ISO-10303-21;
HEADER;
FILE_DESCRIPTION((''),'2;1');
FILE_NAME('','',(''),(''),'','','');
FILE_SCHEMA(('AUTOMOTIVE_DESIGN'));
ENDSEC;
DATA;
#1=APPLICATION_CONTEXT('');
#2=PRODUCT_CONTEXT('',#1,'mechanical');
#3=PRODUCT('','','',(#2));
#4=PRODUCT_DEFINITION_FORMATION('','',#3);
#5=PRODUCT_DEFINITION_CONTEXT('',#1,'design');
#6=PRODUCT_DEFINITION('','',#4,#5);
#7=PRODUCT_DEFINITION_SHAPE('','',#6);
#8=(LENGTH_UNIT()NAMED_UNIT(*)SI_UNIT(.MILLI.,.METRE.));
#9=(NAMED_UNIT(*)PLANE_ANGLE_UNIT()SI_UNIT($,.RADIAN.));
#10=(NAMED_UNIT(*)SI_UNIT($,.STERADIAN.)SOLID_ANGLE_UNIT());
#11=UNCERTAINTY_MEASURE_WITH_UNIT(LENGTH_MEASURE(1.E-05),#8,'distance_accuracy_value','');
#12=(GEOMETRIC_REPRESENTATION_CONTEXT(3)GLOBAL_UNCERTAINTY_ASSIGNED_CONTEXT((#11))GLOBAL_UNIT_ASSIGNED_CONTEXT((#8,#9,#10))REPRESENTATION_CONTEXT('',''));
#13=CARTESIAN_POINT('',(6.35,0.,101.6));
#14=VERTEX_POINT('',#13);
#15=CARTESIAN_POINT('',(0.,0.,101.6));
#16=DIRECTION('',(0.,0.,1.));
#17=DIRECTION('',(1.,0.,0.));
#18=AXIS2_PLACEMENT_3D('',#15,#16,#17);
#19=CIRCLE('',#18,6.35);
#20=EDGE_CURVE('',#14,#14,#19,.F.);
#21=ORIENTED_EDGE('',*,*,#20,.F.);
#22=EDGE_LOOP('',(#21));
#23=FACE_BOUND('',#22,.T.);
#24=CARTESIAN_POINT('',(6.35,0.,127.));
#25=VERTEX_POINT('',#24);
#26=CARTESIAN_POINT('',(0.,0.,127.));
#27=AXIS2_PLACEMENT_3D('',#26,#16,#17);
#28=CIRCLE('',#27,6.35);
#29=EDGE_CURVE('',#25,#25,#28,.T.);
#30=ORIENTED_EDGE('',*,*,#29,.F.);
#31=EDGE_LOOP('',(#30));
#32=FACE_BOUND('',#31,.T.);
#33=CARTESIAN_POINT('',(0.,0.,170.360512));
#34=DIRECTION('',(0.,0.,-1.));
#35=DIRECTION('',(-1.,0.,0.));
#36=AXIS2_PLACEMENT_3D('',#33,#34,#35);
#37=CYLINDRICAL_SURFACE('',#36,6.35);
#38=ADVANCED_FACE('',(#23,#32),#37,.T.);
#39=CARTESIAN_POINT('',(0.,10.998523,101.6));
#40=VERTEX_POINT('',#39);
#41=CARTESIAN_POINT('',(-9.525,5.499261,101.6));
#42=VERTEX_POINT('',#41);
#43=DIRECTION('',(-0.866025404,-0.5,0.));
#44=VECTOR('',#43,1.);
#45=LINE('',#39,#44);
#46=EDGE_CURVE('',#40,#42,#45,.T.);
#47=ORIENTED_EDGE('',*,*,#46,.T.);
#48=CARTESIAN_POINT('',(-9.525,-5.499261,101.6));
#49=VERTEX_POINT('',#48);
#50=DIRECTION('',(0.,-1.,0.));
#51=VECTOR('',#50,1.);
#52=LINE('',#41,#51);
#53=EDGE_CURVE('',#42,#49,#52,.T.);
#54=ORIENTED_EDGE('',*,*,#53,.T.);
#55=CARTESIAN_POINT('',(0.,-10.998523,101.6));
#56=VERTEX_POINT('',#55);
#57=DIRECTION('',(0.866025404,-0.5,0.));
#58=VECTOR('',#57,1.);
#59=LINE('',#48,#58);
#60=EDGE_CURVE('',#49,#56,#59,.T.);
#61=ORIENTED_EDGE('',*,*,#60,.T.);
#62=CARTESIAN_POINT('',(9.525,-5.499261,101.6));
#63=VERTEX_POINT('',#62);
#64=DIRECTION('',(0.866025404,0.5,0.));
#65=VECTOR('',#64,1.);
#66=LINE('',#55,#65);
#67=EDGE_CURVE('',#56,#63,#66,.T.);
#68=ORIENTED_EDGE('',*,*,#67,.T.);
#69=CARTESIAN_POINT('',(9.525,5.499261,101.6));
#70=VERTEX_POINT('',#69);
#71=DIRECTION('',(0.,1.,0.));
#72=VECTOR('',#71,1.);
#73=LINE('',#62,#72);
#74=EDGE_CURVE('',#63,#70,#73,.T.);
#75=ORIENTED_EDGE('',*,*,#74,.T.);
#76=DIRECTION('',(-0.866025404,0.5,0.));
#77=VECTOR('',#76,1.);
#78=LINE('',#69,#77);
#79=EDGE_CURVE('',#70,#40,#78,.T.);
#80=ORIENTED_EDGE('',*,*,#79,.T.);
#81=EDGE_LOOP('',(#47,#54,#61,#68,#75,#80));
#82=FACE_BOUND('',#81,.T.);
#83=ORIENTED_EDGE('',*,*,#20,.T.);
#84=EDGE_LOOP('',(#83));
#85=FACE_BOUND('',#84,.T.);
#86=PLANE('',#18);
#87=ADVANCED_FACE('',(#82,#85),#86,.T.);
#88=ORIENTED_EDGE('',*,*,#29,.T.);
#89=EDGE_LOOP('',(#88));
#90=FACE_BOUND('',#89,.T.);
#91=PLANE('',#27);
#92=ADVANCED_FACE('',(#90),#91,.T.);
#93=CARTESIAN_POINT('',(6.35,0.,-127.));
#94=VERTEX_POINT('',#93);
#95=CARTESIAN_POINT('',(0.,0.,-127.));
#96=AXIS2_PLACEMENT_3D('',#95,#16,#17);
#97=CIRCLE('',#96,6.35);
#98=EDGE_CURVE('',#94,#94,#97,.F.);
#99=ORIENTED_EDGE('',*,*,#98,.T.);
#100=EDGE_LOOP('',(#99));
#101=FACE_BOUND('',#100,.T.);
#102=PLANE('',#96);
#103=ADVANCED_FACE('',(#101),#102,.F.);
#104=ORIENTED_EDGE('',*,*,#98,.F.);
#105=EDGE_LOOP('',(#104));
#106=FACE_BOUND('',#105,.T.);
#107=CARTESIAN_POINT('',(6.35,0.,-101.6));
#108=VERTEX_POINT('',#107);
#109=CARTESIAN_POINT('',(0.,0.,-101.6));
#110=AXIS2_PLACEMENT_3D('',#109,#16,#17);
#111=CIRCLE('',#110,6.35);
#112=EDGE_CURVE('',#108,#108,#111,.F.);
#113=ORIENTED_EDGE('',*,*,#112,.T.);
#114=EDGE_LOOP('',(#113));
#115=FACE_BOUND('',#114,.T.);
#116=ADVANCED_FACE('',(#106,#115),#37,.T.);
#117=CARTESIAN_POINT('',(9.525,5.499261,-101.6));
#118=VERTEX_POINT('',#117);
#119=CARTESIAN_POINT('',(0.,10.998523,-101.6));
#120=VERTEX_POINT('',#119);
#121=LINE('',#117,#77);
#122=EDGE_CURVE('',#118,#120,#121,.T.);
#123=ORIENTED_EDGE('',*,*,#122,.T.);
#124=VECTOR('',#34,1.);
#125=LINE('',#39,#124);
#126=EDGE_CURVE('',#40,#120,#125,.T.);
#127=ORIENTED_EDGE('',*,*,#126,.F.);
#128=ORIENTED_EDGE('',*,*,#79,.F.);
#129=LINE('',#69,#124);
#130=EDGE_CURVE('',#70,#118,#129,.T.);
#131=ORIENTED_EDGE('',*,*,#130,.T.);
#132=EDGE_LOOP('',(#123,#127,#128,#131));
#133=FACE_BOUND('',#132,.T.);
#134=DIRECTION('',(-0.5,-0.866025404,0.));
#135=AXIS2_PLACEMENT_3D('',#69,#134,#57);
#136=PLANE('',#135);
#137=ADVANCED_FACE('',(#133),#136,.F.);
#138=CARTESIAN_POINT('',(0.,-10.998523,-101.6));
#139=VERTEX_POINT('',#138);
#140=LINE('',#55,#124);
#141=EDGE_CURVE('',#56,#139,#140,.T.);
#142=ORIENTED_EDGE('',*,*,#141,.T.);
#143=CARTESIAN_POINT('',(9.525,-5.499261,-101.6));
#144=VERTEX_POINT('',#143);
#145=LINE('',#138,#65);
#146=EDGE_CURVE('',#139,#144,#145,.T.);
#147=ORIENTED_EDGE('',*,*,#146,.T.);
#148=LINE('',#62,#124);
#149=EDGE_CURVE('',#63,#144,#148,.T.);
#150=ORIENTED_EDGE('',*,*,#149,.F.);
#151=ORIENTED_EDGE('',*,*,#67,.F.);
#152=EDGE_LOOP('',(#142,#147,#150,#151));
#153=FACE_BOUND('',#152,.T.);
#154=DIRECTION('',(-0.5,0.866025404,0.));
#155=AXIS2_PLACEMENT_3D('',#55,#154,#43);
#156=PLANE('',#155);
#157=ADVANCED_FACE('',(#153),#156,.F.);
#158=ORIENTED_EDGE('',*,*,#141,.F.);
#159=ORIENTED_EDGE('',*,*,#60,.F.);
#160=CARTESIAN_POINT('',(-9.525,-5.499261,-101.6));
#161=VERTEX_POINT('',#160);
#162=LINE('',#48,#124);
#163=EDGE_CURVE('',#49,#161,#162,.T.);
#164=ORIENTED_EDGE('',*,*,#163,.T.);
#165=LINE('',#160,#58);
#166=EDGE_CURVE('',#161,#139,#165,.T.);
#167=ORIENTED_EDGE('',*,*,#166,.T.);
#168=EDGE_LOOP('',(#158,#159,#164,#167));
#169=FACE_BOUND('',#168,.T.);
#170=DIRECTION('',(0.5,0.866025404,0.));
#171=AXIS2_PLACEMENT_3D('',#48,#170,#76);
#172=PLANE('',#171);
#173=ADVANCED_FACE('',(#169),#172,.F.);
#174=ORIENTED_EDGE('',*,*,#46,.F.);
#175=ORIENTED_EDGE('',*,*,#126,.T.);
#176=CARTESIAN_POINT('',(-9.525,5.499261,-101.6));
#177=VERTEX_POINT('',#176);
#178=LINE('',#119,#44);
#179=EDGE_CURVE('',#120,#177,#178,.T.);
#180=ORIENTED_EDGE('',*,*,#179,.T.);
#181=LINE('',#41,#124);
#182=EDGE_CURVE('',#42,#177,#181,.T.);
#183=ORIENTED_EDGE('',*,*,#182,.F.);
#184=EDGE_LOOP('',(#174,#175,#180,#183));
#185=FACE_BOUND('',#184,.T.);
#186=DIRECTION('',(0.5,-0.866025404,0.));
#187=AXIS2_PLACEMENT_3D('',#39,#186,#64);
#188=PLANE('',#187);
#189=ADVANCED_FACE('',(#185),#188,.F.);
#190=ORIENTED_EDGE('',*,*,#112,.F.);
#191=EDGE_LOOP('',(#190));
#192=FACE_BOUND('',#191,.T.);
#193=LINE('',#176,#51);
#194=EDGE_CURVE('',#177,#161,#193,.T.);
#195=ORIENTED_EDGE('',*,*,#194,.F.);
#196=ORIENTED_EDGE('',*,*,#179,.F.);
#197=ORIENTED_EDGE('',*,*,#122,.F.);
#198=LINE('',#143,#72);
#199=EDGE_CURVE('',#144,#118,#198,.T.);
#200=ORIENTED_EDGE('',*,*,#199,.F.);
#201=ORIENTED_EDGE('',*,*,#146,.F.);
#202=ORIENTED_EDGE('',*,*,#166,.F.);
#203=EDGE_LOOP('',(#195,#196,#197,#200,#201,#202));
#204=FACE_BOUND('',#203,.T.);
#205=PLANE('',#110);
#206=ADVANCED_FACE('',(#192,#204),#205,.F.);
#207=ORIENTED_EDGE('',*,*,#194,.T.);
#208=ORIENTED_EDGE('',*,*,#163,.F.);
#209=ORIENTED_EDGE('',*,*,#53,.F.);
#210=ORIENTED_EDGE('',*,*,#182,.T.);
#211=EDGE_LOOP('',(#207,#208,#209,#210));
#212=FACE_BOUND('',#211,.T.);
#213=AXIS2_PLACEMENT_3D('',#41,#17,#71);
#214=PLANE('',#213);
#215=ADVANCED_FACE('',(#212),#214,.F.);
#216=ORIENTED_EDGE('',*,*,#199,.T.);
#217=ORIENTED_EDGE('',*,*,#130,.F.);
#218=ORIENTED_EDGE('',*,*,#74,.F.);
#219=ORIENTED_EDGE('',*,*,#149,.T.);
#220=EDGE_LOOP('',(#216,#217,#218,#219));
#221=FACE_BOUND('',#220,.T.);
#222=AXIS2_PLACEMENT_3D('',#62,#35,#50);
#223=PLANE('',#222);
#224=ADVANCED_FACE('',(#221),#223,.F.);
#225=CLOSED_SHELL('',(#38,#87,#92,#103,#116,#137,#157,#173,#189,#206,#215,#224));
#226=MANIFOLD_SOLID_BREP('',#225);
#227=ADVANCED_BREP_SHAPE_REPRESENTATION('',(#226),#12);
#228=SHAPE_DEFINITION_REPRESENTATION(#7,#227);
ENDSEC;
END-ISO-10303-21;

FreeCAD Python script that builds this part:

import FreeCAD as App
import Part
import Sketcher
Q = App.Units.Quantity


def add_polygon(sketch, points):
    """Adds a closed chain of lines whose ends are joined by coincident constraints."""
    first, n = sketch.GeometryCount, len(points)
    for a, b in zip(points, points[1:] + points[:1]):
        sketch.addGeometry(Part.LineSegment(App.Vector(*a, 0), App.Vector(*b, 0)), False)
    for i in range(n):
        sketch.addConstraint(Sketcher.Constraint("Coincident", first + i, 2, first + (i + 1) % n, 1))

doc = App.newDocument("Part")
body = doc.addObject("PartDesign::Body", "Body")

# Sketch on XY plane
sketch1 = body.newObject("Sketcher::SketchObject", "Sketch")
sketch1.AttachmentSupport = (doc.getObject("XY_Plane"), [""])
sketch1.MapMode = "FlatFace"
add_polygon(sketch1, [(0, 11), (-10, 5), (-10, -5), (0, -11), (10, -5), (10, 5)])  # lines 0-5
sketch1.addConstraint([
    Sketcher.Constraint("Vertical", 1),
    Sketcher.Constraint("Vertical", 4),
    Sketcher.Constraint("Symmetric", 0, 2, 3, 2, -1, 1),
    Sketcher.Constraint("Symmetric", 2, 2, 5, 2, -1, 1),
    Sketcher.Constraint("PointOnObject", 2, 2, -2),
    Sketcher.Constraint("Parallel", 2, 5),
    Sketcher.Constraint("Horizontal", 1, 2, 3, 2),
    Sketcher.Constraint("Angle", 0, Q("-150 deg")),
    Sketcher.Constraint("DistanceX", 1, 2, 3, 2, Q("0.75 in")),
    Sketcher.Constraint("DistanceY", 1, 2, 1, 1, 10.998523),
])
pad1 = body.newObject("PartDesign::Pad", "Pad")
pad1.Profile = sketch1
pad1.Length = Q("8 in")
pad1.Midplane = True

# Sketch on XY plane
sketch2 = body.newObject("Sketcher::SketchObject", "Sketch001")
sketch2.AttachmentSupport = (doc.getObject("XY_Plane"), [""])
sketch2.MapMode = "FlatFace"
sketch2.addGeometry(Part.Circle(App.Vector(0, 0, 0), App.Vector(0, 0, 1), 6), False)
sketch2.addConstraint([
    Sketcher.Constraint("Coincident", 0, 3, -1, 1),
    Sketcher.Constraint("Diameter", 0, Q("0.5 in")),
])
pad2 = body.newObject("PartDesign::Pad", "Pad001")
pad2.Profile = sketch2
pad2.Type = "TwoLengths"
pad2.Length = Q("5 in")
pad2.Length2 = Q("5 in")

doc.recompute()
